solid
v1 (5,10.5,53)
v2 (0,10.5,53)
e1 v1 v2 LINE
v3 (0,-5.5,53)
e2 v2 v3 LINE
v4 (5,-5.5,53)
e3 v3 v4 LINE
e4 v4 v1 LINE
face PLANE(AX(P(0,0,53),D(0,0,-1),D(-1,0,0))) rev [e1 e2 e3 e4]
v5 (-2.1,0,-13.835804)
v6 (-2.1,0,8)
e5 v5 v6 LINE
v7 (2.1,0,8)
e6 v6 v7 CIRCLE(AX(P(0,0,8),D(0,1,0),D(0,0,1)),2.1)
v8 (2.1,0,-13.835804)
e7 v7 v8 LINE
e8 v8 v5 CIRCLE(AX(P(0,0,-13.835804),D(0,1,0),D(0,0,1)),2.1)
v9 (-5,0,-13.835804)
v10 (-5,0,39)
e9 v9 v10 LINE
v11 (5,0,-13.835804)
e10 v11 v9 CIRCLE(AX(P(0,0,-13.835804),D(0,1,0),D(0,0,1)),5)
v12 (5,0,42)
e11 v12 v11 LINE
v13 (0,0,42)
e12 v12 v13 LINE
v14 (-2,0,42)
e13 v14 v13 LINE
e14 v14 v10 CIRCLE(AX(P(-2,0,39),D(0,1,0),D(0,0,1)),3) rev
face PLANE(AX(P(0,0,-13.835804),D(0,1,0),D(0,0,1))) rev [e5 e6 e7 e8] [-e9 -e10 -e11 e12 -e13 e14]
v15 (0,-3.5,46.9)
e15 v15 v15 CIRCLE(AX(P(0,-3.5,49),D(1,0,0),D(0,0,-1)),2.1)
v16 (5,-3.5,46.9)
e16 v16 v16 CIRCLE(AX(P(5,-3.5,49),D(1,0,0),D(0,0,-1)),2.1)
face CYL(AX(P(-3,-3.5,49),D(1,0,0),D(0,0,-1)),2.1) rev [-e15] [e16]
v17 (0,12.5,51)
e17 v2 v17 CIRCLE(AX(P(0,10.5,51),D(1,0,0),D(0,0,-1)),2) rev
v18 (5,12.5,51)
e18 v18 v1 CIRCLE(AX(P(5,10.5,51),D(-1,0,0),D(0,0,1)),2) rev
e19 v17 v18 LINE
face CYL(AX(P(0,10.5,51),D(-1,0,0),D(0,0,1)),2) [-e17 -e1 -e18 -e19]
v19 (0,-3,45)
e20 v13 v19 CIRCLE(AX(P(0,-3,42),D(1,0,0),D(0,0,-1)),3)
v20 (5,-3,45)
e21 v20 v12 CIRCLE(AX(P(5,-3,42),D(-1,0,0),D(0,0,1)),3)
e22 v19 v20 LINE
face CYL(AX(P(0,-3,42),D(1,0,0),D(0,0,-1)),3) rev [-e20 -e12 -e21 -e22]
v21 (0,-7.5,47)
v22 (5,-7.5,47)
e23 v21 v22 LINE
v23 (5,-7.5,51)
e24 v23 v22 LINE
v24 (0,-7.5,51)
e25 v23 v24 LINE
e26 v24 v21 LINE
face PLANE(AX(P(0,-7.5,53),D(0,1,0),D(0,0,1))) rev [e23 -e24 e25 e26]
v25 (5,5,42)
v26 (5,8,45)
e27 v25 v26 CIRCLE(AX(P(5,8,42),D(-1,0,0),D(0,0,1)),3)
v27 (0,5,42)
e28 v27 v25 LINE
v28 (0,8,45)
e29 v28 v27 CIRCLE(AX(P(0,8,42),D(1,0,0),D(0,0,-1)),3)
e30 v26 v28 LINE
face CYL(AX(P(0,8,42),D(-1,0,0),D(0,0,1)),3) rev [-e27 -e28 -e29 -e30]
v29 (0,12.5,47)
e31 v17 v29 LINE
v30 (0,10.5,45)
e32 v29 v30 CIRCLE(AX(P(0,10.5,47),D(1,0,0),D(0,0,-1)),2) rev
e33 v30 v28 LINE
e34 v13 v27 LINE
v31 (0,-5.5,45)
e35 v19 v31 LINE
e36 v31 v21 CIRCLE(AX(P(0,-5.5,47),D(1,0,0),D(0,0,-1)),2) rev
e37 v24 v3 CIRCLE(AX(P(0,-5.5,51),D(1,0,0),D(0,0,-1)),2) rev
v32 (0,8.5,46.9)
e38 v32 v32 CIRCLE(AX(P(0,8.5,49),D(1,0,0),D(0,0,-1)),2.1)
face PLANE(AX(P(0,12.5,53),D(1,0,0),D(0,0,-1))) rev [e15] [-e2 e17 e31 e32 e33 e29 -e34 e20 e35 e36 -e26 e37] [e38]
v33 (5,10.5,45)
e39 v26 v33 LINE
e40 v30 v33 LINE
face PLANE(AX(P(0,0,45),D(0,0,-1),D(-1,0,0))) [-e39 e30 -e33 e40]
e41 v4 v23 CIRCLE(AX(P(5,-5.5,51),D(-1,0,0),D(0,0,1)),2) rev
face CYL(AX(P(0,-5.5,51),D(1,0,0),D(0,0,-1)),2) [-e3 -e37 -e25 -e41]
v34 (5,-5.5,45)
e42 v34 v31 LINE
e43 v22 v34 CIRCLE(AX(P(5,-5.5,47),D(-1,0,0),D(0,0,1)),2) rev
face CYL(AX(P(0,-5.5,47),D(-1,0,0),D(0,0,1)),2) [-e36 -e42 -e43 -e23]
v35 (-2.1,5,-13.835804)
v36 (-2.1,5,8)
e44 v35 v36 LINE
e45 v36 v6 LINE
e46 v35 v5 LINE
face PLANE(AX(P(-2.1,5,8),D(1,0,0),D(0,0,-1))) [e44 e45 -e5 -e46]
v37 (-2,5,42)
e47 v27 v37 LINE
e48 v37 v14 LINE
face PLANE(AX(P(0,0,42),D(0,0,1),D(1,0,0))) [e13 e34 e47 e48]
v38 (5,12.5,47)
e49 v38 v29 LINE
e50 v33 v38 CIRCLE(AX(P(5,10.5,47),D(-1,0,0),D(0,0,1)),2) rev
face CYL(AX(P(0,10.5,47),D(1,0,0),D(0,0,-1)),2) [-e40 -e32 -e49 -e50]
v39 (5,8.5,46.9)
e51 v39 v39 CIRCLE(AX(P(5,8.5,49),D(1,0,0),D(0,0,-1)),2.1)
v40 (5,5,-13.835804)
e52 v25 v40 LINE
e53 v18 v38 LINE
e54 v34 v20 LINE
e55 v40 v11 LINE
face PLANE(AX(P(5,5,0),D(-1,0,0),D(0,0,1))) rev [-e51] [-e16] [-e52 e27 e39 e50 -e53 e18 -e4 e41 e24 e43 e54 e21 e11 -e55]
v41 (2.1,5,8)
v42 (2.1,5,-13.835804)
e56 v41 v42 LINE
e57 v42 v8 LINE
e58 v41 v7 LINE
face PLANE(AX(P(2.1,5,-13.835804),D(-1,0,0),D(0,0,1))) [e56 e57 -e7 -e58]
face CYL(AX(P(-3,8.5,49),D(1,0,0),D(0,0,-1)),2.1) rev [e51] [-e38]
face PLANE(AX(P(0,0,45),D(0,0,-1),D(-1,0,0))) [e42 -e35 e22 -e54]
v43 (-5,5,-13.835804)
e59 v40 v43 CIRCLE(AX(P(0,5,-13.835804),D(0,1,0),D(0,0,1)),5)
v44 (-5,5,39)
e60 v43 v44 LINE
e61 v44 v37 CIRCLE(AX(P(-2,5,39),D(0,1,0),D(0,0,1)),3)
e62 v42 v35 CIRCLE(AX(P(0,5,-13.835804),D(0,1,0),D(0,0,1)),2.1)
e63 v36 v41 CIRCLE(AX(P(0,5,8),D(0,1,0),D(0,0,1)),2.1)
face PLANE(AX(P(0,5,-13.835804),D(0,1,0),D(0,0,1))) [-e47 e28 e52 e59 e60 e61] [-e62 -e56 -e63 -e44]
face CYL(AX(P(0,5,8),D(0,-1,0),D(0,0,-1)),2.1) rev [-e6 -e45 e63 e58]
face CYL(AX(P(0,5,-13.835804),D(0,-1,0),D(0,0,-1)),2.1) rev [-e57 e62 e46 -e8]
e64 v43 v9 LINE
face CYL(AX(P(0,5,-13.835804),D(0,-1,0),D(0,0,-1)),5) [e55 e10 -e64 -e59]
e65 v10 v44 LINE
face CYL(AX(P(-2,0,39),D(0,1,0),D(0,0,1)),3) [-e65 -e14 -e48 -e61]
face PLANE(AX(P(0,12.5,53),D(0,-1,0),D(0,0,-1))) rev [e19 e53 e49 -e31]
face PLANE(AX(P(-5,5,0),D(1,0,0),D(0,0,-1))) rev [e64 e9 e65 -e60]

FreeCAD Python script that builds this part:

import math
import FreeCAD as App
import Part
import Sketcher
from FreeCAD import Vector
Q = App.Units.Quantity


def edges_at(feature, points):
    """Names of the edges that pass closest to the given points."""
    edges = feature.Shape.Edges
    near = lambda p: min(range(len(edges)), key=lambda i: edges[i].distToShape(Part.Vertex(*p))[0])
    return sorted({f"Edge{near(p) + 1}" for p in points})


def add_polygon(sketch, points):
    """Adds a closed chain of lines whose ends are joined by coincident constraints."""
    first, n = sketch.GeometryCount, len(points)
    for a, b in zip(points, points[1:] + points[:1]):
        sketch.addGeometry(Part.LineSegment(App.Vector(*a, 0), App.Vector(*b, 0)), False)
    for i in range(n):
        sketch.addConstraint(Sketcher.Constraint("Coincident", first + i, 2, first + (i + 1) % n, 1))

doc = App.newDocument("Part")
params = doc.addObject("Spreadsheet::Sheet", "Params")
for row, (alias, value) in enumerate([
    ("sketch1_radius", "5 mm"),
    ("sketch1_radius2", "2.1 mm"),
    ("pad1_length", "5 mm"),
    ("sketch2_width", "5 mm"),
    ("sketch2_height", "20 mm"),
    ("pad2_length", "8 mm"),
    ("sketch3_diameter", "4.2 mm"),
    ("pocket1_length", "8 mm"),
    ("fillet_radius", "2 mm"),
    ("sketch4_width", "5 mm"),
    ("pocket2_length", "3 mm"),
    ("fillet2_radius", "3 mm"),
], start=1):
    params.set(f"A{row}", alias)
    params.set(f"B{row}", "=" + value)
    params.setAlias(f"B{row}", alias)

body = doc.addObject("PartDesign::Body", "Body")

# Sketch on XZ plane
sketch1 = doc.addObject("Sketcher::SketchObject", "Sketch")
body.addObject(sketch1)
sketch1.AttachmentSupport = (doc.XZ_Plane, [""])
sketch1.MapMode = "FlatFace"
sketch1.addGeometry(Part.ArcOfCircle(Part.Circle(Vector(0, -13.8, 0), Vector(0, 0, 1), 5), math.radians(180), math.radians(360)), False)
sketch1.addGeometry(Part.LineSegment(Vector(-5, -13.8, 0), Vector(-5, 45, 0)), False)
sketch1.addGeometry(Part.LineSegment(Vector(-5, 45, 0), Vector(5, 45, 0)), False)
sketch1.addGeometry(Part.LineSegment(Vector(5, 45, 0), Vector(5, -13.8, 0)), False)
sketch1.addGeometry(Part.LineSegment(Vector(-2.1, 8, 0), Vector(-2.1, -13.8, 0)), False)
sketch1.addGeometry(Part.ArcOfCircle(Part.Circle(Vector(0, -13.8, 0), Vector(0, 0, 1), 2.1), math.radians(180), math.radians(360)), False)
sketch1.addGeometry(Part.LineSegment(Vector(2.1, -13.8, 0), Vector(2.1, 8, 0)), False)
sketch1.addGeometry(Part.ArcOfCircle(Part.Circle(Vector(0, 8, 0), Vector(0, 0, 1), 2.1), math.radians(0), math.radians(180)), False)
sketch1.addConstraint(Sketcher.Constraint("Tangent", 0, 1, 1, 1))
sketch1.addConstraint(Sketcher.Constraint("Coincident", 1, 2, 2, 1))
sketch1.addConstraint(Sketcher.Constraint("Coincident", 2, 2, 3, 1))
sketch1.addConstraint(Sketcher.Constraint("Tangent", 3, 2, 0, 2))
sketch1.addConstraint(Sketcher.Constraint("Tangent", 4, 2, 5, 1))
sketch1.addConstraint(Sketcher.Constraint("Tangent", 5, 2, 6, 1))
sketch1.addConstraint(Sketcher.Constraint("Tangent", 6, 2, 7, 1))
sketch1.addConstraint(Sketcher.Constraint("Tangent", 7, 2, 4, 1))
sketch1.addConstraint(Sketcher.Constraint("Vertical", 1))
sketch1.addConstraint(Sketcher.Constraint("Horizontal", 2))
sketch1.addConstraint(Sketcher.Constraint("Vertical", 3))
sketch1.addConstraint(Sketcher.Constraint("Vertical", 4))
sketch1.addConstraint(Sketcher.Constraint("Vertical", 6))
sketch1.addConstraint(Sketcher.Constraint("Coincident", 5, 3, 0, 3))
sketch1.addConstraint(Sketcher.Constraint("PointOnObject", 0, 3, -2))
sketch1.addConstraint(Sketcher.Constraint("Radius", 0, Q("5 mm")))
sketch1.addConstraint(Sketcher.Constraint("Radius", 5, Q("2.1 mm")))
sketch1.addConstraint(Sketcher.Constraint("DistanceY", -1, 1, 7, 3, Q("8 mm")))
sketch1.addConstraint(Sketcher.Constraint("DistanceY", -1, 1, 1, 2, Q("45 mm")))
sketch1.addConstraint(Sketcher.Constraint("DistanceY", 1, 1, 1, 2, Q("58.835804 mm")))
sketch1.setExpression("Constraints[15]", "Params.sketch1_radius")
sketch1.setExpression("Constraints[16]", "Params.sketch1_radius2")
pad1 = doc.addObject("PartDesign::Pad", "Pad")
body.addObject(pad1)
pad1.Profile = sketch1
pad1.setExpression("Length", "Params.pad1_length")
pad1.Reversed = True

# Sketch on XY plane
sketch2 = doc.addObject("Sketcher::SketchObject", "Sketch001")
body.addObject(sketch2)
sketch2.AttachmentSupport = (doc.XY_Plane, [""])
sketch2.MapMode = "FlatFace"
sketch2.AttachmentOffset = App.Placement(Vector(0, 0, 45), App.Rotation())
add_polygon(sketch2, [(0, 12), (0, -8), (5, -8), (5, 12)])  # lines 0-3
sketch2.addConstraint(Sketcher.Constraint("Vertical", 0))
sketch2.addConstraint(Sketcher.Constraint("Horizontal", 1))
sketch2.addConstraint(Sketcher.Constraint("Vertical", 2))
sketch2.addConstraint(Sketcher.Constraint("Horizontal", 3))
sketch2.addConstraint(Sketcher.Constraint("PointOnObject", 0, 2, -2))
sketch2.addConstraint(Sketcher.Constraint("DistanceX", 1, 1, 1, 2, Q("5 mm")))
sketch2.addConstraint(Sketcher.Constraint("DistanceY", 0, 2, 0, 1, Q("20 mm")))
sketch2.addConstraint(Sketcher.Constraint("DistanceY", 0, 2, -1, 1, Q("7.5 mm")))
sketch2.setExpression("Constraints[9]", "Params.sketch2_width")
sketch2.setExpression("Constraints[10]", "Params.sketch2_height")
pad2 = doc.addObject("PartDesign::Pad", "Pad001")
body.addObject(pad2)
pad2.Profile = sketch2
pad2.setExpression("Length", "Params.pad2_length")

# Sketch on YZ plane
sketch3 = doc.addObject("Sketcher::SketchObject", "Sketch002")
body.addObject(sketch3)
sketch3.AttachmentSupport = (doc.YZ_Plane, [""])
sketch3.MapMode = "FlatFace"
sketch3.AttachmentOffset = App.Placement(Vector(0, 0, 5), App.Rotation())
sketch3.addGeometry(Part.Circle(Vector(8.5, 49, 0), Vector(0, 0, 1), 2.1), False)
sketch3.addGeometry(Part.Circle(Vector(-3.5, 49, 0), Vector(0, 0, 1), 2.1), False)
sketch3.addConstraint(Sketcher.Constraint("Equal", 0, 1))
sketch3.addConstraint(Sketcher.Constraint("Horizontal", 0, 3, 1, 3))
sketch3.addConstraint(Sketcher.Constraint("Diameter", 0, Q("4.2 mm")))
sketch3.addConstraint(Sketcher.Constraint("DistanceY", -1, 1, 0, 3, Q("49 mm")))
sketch3.addConstraint(Sketcher.Constraint("DistanceX", 1, 3, 0, 3, Q("12 mm")))
sketch3.addConstraint(Sketcher.Constraint("DistanceX", -1, 1, 0, 3, Q("8.5 mm")))
sketch3.setExpression("Constraints[2]", "Params.sketch3_diameter")
pocket1 = doc.addObject("PartDesign::Pocket", "Pocket")
body.addObject(pocket1)
pocket1.Profile = sketch3
pocket1.setExpression("Length", "Params.pocket1_length")
doc.recompute()

fillet = doc.addObject("PartDesign::Fillet", "Fillet")
body.addObject(fillet)
fillet.Base = (pocket1, edges_at(pocket1, [
    (2.5, 12.5, 45),
    (2.5, -7.5, 45),
    (2.5, 12.5, 53),
    (2.5, -7.5, 53),
]))
fillet.setExpression("Radius", "Params.fillet_radius")

# Sketch on XY plane
sketch4 = doc.addObject("Sketcher::SketchObject", "Sketch003")
body.addObject(sketch4)
sketch4.AttachmentSupport = (doc.XY_Plane, [""])
sketch4.MapMode = "FlatFace"
sketch4.AttachmentOffset = App.Placement(Vector(0, 0, 45), App.Rotation())
add_polygon(sketch4, [(-5, 5), (-5, 0), (0, 0), (0, 5)])  # lines 0-3
sketch4.addConstraint(Sketcher.Constraint("Vertical", 0))
sketch4.addConstraint(Sketcher.Constraint("Horizontal", 1))
sketch4.addConstraint(Sketcher.Constraint("Vertical", 2))
sketch4.addConstraint(Sketcher.Constraint("Horizontal", 3))
sketch4.addConstraint(Sketcher.Constraint("Coincident", 1, 2, -1, 1))
sketch4.addConstraint(Sketcher.Constraint("Equal", 3, 0))
sketch4.addConstraint(Sketcher.Constraint("DistanceX", 1, 1, 1, 2, Q("5 mm")))
sketch4.setExpression("Constraints[10]", "Params.sketch4_width")
pocket2 = doc.addObject("PartDesign::Pocket", "Pocket001")
body.addObject(pocket2)
pocket2.Profile = sketch4
pocket2.setExpression("Length", "Params.pocket2_length")
doc.recompute()

fillet2 = doc.addObject("PartDesign::Fillet", "Fillet001")
body.addObject(fillet2)
fillet2.Base = (pocket2, edges_at(pocket2, [(2.5, 0, 45), (2.5, 5, 45), (-5, 2.5, 42)]))
fillet2.setExpression("Radius", "Params.fillet2_radius")

doc.recompute()
